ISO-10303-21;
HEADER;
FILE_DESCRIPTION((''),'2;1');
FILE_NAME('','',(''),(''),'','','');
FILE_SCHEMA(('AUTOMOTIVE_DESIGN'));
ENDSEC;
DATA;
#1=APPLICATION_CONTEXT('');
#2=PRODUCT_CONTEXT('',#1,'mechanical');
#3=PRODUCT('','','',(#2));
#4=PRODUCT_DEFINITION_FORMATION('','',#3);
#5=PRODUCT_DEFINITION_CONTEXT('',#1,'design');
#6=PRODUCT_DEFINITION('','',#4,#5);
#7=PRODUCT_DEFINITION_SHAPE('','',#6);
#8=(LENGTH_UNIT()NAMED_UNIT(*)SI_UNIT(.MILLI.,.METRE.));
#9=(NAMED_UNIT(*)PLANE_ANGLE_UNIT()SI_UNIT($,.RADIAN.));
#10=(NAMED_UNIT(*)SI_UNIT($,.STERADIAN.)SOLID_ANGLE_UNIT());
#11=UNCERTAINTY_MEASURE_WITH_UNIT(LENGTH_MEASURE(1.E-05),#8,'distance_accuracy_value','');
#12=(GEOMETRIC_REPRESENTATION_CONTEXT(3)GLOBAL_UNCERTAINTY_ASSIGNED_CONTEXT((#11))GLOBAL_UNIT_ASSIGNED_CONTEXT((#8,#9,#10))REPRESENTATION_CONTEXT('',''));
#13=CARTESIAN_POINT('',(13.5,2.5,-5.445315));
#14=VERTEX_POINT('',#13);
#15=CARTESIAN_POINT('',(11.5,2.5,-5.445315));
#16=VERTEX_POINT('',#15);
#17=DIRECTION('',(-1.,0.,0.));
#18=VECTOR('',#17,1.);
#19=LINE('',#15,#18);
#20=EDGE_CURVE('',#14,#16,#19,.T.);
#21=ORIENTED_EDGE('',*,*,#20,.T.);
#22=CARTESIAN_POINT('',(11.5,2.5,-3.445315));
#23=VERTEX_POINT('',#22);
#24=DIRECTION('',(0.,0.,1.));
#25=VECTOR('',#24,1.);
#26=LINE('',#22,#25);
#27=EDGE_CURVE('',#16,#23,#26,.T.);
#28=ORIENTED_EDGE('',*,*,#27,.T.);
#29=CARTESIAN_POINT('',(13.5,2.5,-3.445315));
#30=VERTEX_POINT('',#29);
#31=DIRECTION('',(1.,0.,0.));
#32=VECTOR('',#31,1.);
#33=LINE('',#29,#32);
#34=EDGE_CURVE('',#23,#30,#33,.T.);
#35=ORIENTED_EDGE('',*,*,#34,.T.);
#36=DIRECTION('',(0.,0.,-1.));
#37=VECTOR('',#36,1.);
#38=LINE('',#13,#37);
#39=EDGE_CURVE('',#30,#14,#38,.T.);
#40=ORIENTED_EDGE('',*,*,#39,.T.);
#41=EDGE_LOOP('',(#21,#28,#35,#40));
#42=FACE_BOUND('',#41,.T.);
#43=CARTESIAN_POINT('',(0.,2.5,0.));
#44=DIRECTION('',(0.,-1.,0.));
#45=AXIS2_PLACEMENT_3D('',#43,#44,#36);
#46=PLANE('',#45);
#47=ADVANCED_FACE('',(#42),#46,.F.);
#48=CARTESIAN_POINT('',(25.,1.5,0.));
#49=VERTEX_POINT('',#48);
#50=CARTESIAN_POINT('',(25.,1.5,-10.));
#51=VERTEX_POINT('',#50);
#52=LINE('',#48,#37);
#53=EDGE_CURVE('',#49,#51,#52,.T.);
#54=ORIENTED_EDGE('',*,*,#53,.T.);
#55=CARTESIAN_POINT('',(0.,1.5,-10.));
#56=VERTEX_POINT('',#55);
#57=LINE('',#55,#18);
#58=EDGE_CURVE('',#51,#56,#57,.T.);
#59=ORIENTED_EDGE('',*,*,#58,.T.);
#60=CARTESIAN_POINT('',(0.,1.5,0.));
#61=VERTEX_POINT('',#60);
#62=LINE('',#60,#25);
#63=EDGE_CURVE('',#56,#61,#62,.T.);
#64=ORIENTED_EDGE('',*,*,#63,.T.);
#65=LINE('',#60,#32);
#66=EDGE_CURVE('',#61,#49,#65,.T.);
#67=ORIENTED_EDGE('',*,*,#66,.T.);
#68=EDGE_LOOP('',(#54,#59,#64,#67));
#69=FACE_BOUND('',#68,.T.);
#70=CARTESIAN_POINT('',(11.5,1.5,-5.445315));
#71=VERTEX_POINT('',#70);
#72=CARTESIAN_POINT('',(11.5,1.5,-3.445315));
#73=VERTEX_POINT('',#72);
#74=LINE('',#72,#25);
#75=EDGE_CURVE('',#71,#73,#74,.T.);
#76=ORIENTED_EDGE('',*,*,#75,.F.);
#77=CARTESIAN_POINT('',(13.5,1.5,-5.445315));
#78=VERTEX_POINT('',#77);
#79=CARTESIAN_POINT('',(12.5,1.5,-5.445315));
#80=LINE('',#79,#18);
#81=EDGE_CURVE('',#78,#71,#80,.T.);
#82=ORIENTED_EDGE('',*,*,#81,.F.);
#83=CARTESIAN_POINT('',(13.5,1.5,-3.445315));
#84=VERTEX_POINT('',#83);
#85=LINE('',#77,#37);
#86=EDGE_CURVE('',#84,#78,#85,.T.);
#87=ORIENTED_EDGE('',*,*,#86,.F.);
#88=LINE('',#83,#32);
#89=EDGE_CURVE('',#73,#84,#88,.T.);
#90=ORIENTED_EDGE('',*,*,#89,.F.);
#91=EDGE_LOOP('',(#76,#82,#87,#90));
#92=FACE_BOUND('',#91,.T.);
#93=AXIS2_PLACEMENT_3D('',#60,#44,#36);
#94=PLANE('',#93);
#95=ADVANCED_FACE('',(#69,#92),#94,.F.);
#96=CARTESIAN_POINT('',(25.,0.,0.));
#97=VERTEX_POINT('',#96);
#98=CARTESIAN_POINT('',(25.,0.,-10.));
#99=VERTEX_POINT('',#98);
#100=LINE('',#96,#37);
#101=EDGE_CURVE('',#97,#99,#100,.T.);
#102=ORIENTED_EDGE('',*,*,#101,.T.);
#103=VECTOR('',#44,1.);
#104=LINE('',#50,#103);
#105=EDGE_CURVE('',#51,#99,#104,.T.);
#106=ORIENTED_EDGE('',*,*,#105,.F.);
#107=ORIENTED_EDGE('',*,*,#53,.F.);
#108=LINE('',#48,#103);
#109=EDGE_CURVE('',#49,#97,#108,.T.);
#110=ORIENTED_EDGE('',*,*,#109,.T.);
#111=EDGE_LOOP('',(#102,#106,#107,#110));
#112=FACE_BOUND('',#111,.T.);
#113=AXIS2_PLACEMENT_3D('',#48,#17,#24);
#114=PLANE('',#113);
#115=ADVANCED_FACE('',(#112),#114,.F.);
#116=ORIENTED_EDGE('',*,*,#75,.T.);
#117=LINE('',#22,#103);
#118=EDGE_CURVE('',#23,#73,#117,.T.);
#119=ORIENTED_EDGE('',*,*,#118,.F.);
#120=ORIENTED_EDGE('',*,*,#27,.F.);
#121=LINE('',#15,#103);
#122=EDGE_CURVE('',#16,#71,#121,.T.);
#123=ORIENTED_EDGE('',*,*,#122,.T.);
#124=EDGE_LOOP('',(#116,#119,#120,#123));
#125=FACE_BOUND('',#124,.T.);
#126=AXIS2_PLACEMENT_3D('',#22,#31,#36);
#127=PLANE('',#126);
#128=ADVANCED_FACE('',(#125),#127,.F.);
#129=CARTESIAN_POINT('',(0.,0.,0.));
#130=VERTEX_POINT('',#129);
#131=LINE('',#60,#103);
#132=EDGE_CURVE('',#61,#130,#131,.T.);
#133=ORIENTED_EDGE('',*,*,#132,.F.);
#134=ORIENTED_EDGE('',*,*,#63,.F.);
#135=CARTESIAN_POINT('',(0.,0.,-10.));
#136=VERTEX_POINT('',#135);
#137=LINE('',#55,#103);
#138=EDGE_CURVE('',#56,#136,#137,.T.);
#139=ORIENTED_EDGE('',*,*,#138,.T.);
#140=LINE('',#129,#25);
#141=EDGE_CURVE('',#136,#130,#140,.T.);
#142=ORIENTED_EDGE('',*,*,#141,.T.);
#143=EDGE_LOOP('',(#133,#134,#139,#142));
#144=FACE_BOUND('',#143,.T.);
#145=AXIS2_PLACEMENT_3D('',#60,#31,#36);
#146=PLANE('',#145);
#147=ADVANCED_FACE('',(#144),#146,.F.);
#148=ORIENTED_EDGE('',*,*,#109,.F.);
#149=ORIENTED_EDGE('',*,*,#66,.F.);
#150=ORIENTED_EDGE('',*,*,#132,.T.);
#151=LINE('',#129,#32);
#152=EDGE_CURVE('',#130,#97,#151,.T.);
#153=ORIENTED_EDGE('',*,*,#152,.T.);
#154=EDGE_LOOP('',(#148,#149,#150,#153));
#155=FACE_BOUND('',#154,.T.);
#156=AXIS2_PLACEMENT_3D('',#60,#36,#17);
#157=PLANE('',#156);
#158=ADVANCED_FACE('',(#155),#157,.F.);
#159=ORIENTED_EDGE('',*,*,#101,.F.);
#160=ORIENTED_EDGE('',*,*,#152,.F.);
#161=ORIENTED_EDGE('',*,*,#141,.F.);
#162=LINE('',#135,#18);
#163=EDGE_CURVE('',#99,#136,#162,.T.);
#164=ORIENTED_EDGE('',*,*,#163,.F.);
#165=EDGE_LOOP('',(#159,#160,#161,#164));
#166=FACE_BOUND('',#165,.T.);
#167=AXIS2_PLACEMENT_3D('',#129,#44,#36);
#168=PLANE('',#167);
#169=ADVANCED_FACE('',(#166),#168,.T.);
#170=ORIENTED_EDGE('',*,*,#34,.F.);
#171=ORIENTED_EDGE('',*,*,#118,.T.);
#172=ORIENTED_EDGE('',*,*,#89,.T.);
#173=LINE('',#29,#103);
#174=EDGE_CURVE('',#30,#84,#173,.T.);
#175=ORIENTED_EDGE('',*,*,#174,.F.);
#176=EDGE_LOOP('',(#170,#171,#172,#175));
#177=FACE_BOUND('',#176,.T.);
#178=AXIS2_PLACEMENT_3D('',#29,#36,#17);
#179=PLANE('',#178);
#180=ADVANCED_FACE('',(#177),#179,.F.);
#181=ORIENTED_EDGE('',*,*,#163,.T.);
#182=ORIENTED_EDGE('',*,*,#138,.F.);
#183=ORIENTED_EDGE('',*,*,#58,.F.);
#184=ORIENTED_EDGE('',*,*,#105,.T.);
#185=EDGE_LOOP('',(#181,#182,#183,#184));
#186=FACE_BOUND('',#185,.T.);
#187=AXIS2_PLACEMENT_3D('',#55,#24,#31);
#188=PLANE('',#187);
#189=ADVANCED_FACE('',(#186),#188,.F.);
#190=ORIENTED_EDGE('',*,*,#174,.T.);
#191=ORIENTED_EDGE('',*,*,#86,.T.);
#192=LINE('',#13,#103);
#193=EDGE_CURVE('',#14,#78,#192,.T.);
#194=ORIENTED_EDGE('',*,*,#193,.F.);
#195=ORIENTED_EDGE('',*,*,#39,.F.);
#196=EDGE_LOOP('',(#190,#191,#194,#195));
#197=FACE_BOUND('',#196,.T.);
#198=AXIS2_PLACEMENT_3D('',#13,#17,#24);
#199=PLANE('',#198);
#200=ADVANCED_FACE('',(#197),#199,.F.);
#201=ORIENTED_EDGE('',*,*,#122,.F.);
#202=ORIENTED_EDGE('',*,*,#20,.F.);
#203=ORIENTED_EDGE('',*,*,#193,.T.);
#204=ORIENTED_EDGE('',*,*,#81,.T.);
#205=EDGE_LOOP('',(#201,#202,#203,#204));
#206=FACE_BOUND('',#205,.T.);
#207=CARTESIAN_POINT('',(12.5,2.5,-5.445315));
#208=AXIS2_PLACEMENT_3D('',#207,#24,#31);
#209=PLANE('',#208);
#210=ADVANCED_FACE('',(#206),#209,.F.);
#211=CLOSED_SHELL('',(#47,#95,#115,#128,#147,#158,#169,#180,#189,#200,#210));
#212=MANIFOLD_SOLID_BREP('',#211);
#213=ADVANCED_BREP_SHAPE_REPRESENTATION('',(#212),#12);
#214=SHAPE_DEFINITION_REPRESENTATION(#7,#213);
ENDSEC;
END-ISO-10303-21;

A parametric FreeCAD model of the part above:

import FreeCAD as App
import Part
import Sketcher
from FreeCAD import Vector
Q = App.Units.Quantity

doc = App.newDocument("Part")
body = doc.addObject("PartDesign::Body", "Body")

# Sketch on XZ plane
sketch1 = body.newObject("Sketcher::SketchObject", "Sketch")
sketch1.AttachmentSupport = (doc.getObject("XZ_Plane"), [""])
sketch1.MapMode = "FlatFace"
sketch1.addGeometry([
    Part.LineSegment(Vector(0, -10, 0), Vector(0, 0, 0)),
    Part.LineSegment(Vector(0, 0, 0), Vector(25, 0, 0)),
    Part.LineSegment(Vector(25, 0, 0), Vector(25, -10, 0)),
    Part.LineSegment(Vector(25, -10, 0), Vector(0, -10, 0)),
], False)
sketch1.addConstraint([
    Sketcher.Constraint("Coincident", 0, 2, 1, 1),
    Sketcher.Constraint("Coincident", 1, 2, 2, 1),
    Sketcher.Constraint("Coincident", 2, 2, 3, 1),
    Sketcher.Constraint("Coincident", 3, 2, 0, 1),
    Sketcher.Constraint("Vertical", 0),
    Sketcher.Constraint("Horizontal", 1),
    Sketcher.Constraint("Vertical", 2),
    Sketcher.Constraint("Horizontal", 3),
    Sketcher.Constraint("Coincident", 0, 2, -1, 1),
    Sketcher.Constraint("DistanceX", 1, 1, 1, 2, Q("25 mm")),
    Sketcher.Constraint("DistanceY", 0, 1, 0, 2, Q("10 mm")),
])
pad1 = body.newObject("PartDesign::Pad", "Pad")
pad1.Profile = sketch1
pad1.Length = 1.5
pad1.Reversed = True

# Sketch on XZ plane
sketch2 = body.newObject("Sketcher::SketchObject", "Sketch001")
sketch2.AttachmentSupport = (doc.getObject("XZ_Plane"), [""])
sketch2.MapMode = "FlatFace"
sketch2.AttachmentOffset = App.Placement(Vector(0, 0, -1.5), App.Rotation())
sketch2.addGeometry([
    Part.LineSegment(Vector(13.5, -5.4, 0), Vector(11.5, -5.4, 0)),
    Part.LineSegment(Vector(11.5, -5.4, 0), Vector(11.5, -3.4, 0)),
    Part.LineSegment(Vector(11.5, -3.4, 0), Vector(13.5, -3.4, 0)),
    Part.LineSegment(Vector(13.5, -3.4, 0), Vector(13.5, -5.4, 0)),
], False)
sketch2.addConstraint([
    Sketcher.Constraint("Coincident", 0, 2, 1, 1),
    Sketcher.Constraint("Coincident", 1, 2, 2, 1),
    Sketcher.Constraint("Coincident", 2, 2, 3, 1),
    Sketcher.Constraint("Coincident", 3, 2, 0, 1),
    Sketcher.Constraint("Horizontal", 0),
    Sketcher.Constraint("Vertical", 1),
    Sketcher.Constraint("Horizontal", 2),
    Sketcher.Constraint("Vertical", 3),
    Sketcher.Constraint("Equal", 2, 1),
    Sketcher.Constraint("DistanceX", 0, 2, 0, 1, Q("2 mm")),
    Sketcher.Constraint("DistanceX", -1, 1, 0, 2, Q("11.5 mm")),
    Sketcher.Constraint("DistanceY", 0, 2, -1, 1, Q("5.445315 mm")),
])
pad2 = body.newObject("PartDesign::Pad", "Pad001")
pad2.Profile = sketch2
pad2.Length = 1
pad2.Reversed = True

doc.recompute()
